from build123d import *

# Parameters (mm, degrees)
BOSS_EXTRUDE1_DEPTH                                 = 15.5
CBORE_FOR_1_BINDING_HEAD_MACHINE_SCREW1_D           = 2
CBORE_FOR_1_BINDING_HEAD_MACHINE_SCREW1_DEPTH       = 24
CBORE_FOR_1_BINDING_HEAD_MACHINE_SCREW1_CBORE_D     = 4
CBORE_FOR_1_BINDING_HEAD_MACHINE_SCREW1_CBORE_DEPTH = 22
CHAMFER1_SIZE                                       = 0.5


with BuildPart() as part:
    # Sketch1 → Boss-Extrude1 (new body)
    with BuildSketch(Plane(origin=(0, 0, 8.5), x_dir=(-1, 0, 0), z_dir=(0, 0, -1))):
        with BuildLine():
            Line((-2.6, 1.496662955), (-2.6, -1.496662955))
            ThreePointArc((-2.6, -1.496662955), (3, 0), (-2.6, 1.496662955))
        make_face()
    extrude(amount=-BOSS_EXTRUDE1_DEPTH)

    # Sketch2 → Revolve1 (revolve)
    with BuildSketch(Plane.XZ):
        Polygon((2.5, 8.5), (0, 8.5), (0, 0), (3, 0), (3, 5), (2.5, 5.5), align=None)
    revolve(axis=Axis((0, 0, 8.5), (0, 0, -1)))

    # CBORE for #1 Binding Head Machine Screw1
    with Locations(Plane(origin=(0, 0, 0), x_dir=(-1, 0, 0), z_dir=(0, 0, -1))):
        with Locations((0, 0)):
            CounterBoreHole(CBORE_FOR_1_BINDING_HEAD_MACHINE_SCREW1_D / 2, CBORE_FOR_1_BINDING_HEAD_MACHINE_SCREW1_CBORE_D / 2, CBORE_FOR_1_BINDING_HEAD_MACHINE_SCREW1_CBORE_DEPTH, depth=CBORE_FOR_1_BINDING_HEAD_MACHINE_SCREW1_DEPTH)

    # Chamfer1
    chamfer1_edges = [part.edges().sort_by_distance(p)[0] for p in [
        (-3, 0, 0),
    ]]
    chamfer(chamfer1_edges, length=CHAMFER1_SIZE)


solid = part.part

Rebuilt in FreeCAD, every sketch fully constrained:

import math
import FreeCAD as App
import Part
import Sketcher
Q = App.Units.Quantity


def edges_at(feature, points):
    """Names of the edges that pass closest to the given points."""
    edges = feature.Shape.Edges
    near = lambda p: min(range(len(edges)), key=lambda i: edges[i].distToShape(Part.Vertex(*p))[0])
    return sorted({f"Edge{near(p) + 1}" for p in points})

doc = App.newDocument("Part")
body = doc.addObject("PartDesign::Body", "Body")

# Sketch on XY plane
sketch1 = body.newObject("Sketcher::SketchObject", "Sketch")
sketch1.AttachmentSupport = (doc.getObject("XY_Plane"), [""])
sketch1.MapMode = "FlatFace"
sketch1.AttachmentOffset = App.Placement(App.Vector(0, 0, 8.5), App.Rotation())
sketch1.addGeometry(Part.LineSegment(App.Vector(2.6, 1.496663, 0), App.Vector(2.6, -1.496663, 0)), False)
sketch1.addGeometry(Part.ArcOfCircle(Part.Circle(App.Vector(0, 0, 0), App.Vector(0, 0, 1), 3), math.radians(29.926435), math.radians(330.073565)), False)
sketch1.addConstraint(Sketcher.Constraint("Coincident", 0, 1, 1, 1))
sketch1.addConstraint(Sketcher.Constraint("Coincident", 1, 2, 0, 2))
sketch1.addConstraint(Sketcher.Constraint("Vertical", 0))
sketch1.addConstraint(Sketcher.Constraint("Coincident", 1, 3, -1, 1))
sketch1.addConstraint(Sketcher.Constraint("Radius", 1, Q("3 mm")))
sketch1.addConstraint(Sketcher.Constraint("DistanceX", -1, 1, 0, 1, Q("2.6 mm")))
pad1 = body.newObject("PartDesign::Pad", "Pad")
pad1.Profile = sketch1
pad1.Length = 15.5

# Sketch on XZ plane
sketch2 = body.newObject("Sketcher::SketchObject", "Sketch001")
sketch2.AttachmentSupport = (doc.getObject("XZ_Plane"), [""])
sketch2.MapMode = "FlatFace"
sketch2.addGeometry(Part.LineSegment(App.Vector(2.5, 8.5, 0), App.Vector(0, 8.5, 0)), False)
sketch2.addGeometry(Part.LineSegment(App.Vector(0, 8.5, 0), App.Vector(0, 0, 0)), False)
sketch2.addGeometry(Part.LineSegment(App.Vector(0, 0, 0), App.Vector(3, 0, 0)), False)
sketch2.addGeometry(Part.LineSegment(App.Vector(3, 0, 0), App.Vector(3, 5, 0)), False)
sketch2.addGeometry(Part.LineSegment(App.Vector(3, 5, 0), App.Vector(2.5, 5.5, 0)), False)
sketch2.addGeometry(Part.LineSegment(App.Vector(2.5, 5.5, 0), App.Vector(2.5, 8.5, 0)), False)
sketch2.addConstraint(Sketcher.Constraint("Coincident", 0, 2, 1, 1))
sketch2.addConstraint(Sketcher.Constraint("Coincident", 1, 2, 2, 1))
sketch2.addConstraint(Sketcher.Constraint("Coincident", 2, 2, 3, 1))
sketch2.addConstraint(Sketcher.Constraint("Coincident", 3, 2, 4, 1))
sketch2.addConstraint(Sketcher.Constraint("Coincident", 4, 2, 5, 1))
sketch2.addConstraint(Sketcher.Constraint("Coincident", 5, 2, 0, 1))
sketch2.addConstraint(Sketcher.Constraint("Horizontal", 0))
sketch2.addConstraint(Sketcher.Constraint("Vertical", 1))
sketch2.addConstraint(Sketcher.Constraint("Horizontal", 2))
sketch2.addConstraint(Sketcher.Constraint("Vertical", 3))
sketch2.addConstraint(Sketcher.Constraint("Vertical", 5))
sketch2.addConstraint(Sketcher.Constraint("Coincident", 1, 2, -1, 1))
sketch2.addConstraint(Sketcher.Constraint("Equal", 2, 5))
sketch2.addConstraint(Sketcher.Constraint("DistanceX", 2, 1, 2, 2, Q("3 mm")))
sketch2.addConstraint(Sketcher.Constraint("DistanceY", 3, 1, 3, 2, Q("5 mm")))
sketch2.addConstraint(Sketcher.Constraint("Angle", 4, Q("135 deg")))
sketch2.addConstraint(Sketcher.Constraint("DistanceX", 0, 2, 0, 1, Q("2.5 mm")))
revolution = body.newObject("PartDesign::Revolution", "Revolution")
revolution.Profile = sketch2
revolution.ReferenceAxis = (sketch2, ["V_Axis"])
revolution.Angle = 360

# Sketch on XY plane
sketch3 = body.newObject("Sketcher::SketchObject", "Sketch002")
sketch3.AttachmentSupport = (doc.getObject("XY_Plane"), [""])
sketch3.MapMode = "FlatFace"
sketch3.addGeometry(Part.Circle(App.Vector(0, 0, 0), App.Vector(0, 0, 1), 1), False)
sketch3.addConstraint(Sketcher.Constraint("Coincident", 0, 3, -1, 1))
sketch3.addConstraint(Sketcher.Constraint("Diameter", 0, Q("2 mm")))
doc.recompute()
hole = body.newObject("PartDesign::Hole", "Hole")
hole.Profile = sketch3
hole.ThreadType = "None"
hole.Diameter = 2
hole.DepthType = "Dimension"
hole.Depth = 24
hole.DrillPoint = "Flat"
hole.HoleCutType = "Counterbore"
hole.HoleCutDiameter = 4
hole.HoleCutDepth = 22
hole.Reversed = True
doc.recompute()

chamfer = body.newObject("PartDesign::Chamfer", "Chamfer")
chamfer.Base = (hole, edges_at(hole, [(-3, 0, 0)]))
chamfer.Size = 0.5

doc.recompute()
